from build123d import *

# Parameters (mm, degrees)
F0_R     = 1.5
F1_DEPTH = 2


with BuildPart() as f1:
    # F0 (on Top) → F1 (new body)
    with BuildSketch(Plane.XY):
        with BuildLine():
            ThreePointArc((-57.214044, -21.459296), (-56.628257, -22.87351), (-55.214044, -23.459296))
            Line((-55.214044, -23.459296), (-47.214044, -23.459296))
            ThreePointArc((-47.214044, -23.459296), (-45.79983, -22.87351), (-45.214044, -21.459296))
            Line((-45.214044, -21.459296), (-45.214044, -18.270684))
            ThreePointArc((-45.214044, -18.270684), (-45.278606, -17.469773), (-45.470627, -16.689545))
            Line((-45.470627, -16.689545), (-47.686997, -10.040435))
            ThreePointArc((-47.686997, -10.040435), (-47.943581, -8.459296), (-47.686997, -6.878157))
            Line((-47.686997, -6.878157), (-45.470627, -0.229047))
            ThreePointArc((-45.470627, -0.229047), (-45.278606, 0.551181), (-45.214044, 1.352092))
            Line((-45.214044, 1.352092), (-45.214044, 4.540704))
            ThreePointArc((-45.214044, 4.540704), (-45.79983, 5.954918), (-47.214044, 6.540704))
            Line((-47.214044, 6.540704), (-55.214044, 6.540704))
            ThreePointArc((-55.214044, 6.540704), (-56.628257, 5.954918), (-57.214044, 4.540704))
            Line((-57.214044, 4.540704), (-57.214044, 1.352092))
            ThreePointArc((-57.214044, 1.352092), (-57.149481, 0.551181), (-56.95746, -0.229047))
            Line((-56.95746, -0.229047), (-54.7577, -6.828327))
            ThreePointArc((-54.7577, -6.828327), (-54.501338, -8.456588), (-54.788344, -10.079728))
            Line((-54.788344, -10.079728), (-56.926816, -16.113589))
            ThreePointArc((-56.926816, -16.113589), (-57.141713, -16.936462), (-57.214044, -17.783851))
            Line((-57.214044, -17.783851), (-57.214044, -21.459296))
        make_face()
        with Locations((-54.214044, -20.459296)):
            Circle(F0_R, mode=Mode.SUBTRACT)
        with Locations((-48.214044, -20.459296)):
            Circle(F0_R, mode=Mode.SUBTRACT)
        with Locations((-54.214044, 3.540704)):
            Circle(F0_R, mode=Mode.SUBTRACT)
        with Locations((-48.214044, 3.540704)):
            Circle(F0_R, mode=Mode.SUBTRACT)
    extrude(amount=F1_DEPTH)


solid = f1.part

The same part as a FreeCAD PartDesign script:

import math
import FreeCAD as App
import Part
import Sketcher
Q = App.Units.Quantity

doc = App.newDocument("Part")
params = doc.addObject("Spreadsheet::Sheet", "Params")
for row, (alias, value) in enumerate([
    ("sketch1_diameter", "3 mm"),
    ("sketch1_diameter2", "3 mm"),
    ("sketch1_diameter3", "3 mm"),
    ("sketch1_diameter4", "3 mm"),
    ("sketch1_radius", "2 mm"),
    ("pad1_length", "2 mm"),
], start=1):
    params.set(f"A{row}", alias)
    params.set(f"B{row}", "=" + value)
    params.setAlias(f"B{row}", alias)

body = doc.addObject("PartDesign::Body", "Body")

sketch1 = doc.addObject("Sketcher::SketchObject", "Sketch")
body.addObject(sketch1)
sketch1.AttachmentSupport = (doc.XY_Plane, [""])
sketch1.MapMode = "FlatFace"
sketch1.addGeometry(Part.ArcOfCircle(Part.Circle(App.Vector(-55.214044, -21.459296, 0), App.Vector(0, 0, 1), 2), math.radians(-179.999994), math.radians(-90.000006)), False)
sketch1.addGeometry(Part.LineSegment(App.Vector(-55.214044, -23.459296, 0), App.Vector(-47.214044, -23.459296, 0)), False)
sketch1.addGeometry(Part.ArcOfCircle(Part.Circle(App.Vector(-47.214043, -21.459297, 0), App.Vector(0, 0, 1), 1.999999), math.radians(-90.000043), math.radians(0.000043)), False)
sketch1.addGeometry(Part.LineSegment(App.Vector(-45.214044, -21.459296, 0), App.Vector(-45.214044, -18.270684, 0)), False)
sketch1.addGeometry(Part.ArcOfCircle(Part.Circle(App.Vector(-50.214014, -18.270677, 0), App.Vector(0, 0, 1), 4.99997), math.radians(-0.000076), math.radians(18.434987)), False)
sketch1.addGeometry(Part.LineSegment(App.Vector(-45.470627, -16.689545, 0), App.Vector(-47.686997, -10.040435, 0)), False)
sketch1.addGeometry(Part.ArcOfCircle(Part.Circle(App.Vector(-42.943589, -8.459296, 0), App.Vector(0, 0, 1), 4.999992), math.radians(161.565019), math.radians(198.434981)), False)
sketch1.addGeometry(Part.LineSegment(App.Vector(-47.686997, -6.878157, 0), App.Vector(-45.470627, -0.229047, 0)), False)
sketch1.addGeometry(Part.ArcOfCircle(Part.Circle(App.Vector(-50.214014, 1.352085, 0), App.Vector(0, 0, 1), 4.99997), math.radians(-18.434987), math.radians(0.000076)), False)
sketch1.addGeometry(Part.LineSegment(App.Vector(-45.214044, 1.352092, 0), App.Vector(-45.214044, 4.540704, 0)), False)
sketch1.addGeometry(Part.ArcOfCircle(Part.Circle(App.Vector(-47.214043, 4.540705, 0), App.Vector(0, 0, 1), 1.999999), math.radians(-0.000043), math.radians(90.000043)), False)
sketch1.addGeometry(Part.LineSegment(App.Vector(-47.214044, 6.540704, 0), App.Vector(-55.214044, 6.540704, 0)), False)
sketch1.addGeometry(Part.ArcOfCircle(Part.Circle(App.Vector(-55.214044, 4.540704, 0), App.Vector(0, 0, 1), 2), math.radians(90.000006), math.radians(179.999994)), False)
sketch1.addGeometry(Part.LineSegment(App.Vector(-57.214044, 4.540704, 0), App.Vector(-57.214044, 1.352092, 0)), False)
sketch1.addGeometry(Part.ArcOfCircle(Part.Circle(App.Vector(-52.214036, 1.352095, 0), App.Vector(0, 0, 1), 5.000008), math.radians(-179.999969), math.radians(-161.565049)), False)
sketch1.addGeometry(Part.LineSegment(App.Vector(-56.95746, -0.229047, 0), App.Vector(-54.7577, -6.828327, 0)), False)
sketch1.addGeometry(Part.ArcOfCircle(Part.Circle(App.Vector(-59.501107, -8.409466, 0), App.Vector(0, 0, 1), 4.999991), math.radians(-19.514963), math.radians(18.434986)), False)
sketch1.addGeometry(Part.LineSegment(App.Vector(-54.788344, -10.079728, 0), App.Vector(-56.926816, -16.113589, 0)), False)
sketch1.addGeometry(Part.ArcOfCircle(Part.Circle(App.Vector(-52.213992, -17.783861, 0), App.Vector(0, 0, 1), 5.000052), math.radians(160.485159), math.radians(179.999881)), False)
sketch1.addGeometry(Part.LineSegment(App.Vector(-57.214044, -17.783851, 0), App.Vector(-57.214044, -21.459296, 0)), False)
sketch1.addGeometry(Part.Circle(App.Vector(-54.214044, -20.459296, 0), App.Vector(0, 0, 1), 1.5), False)
sketch1.addGeometry(Part.Circle(App.Vector(-48.214044, -20.459296, 0), App.Vector(0, 0, 1), 1.5), False)
sketch1.addGeometry(Part.Circle(App.Vector(-54.214044, 3.540704, 0), App.Vector(0, 0, 1), 1.5), False)
sketch1.addGeometry(Part.Circle(App.Vector(-48.214044, 3.540704, 0), App.Vector(0, 0, 1), 1.5), False)
sketch1.addConstraint(Sketcher.Constraint("Coincident", 0, 2, 1, 1))
sketch1.addConstraint(Sketcher.Constraint("Coincident", 1, 2, 2, 1))
sketch1.addConstraint(Sketcher.Constraint("Coincident", 2, 2, 3, 1))
sketch1.addConstraint(Sketcher.Constraint("Coincident", 3, 2, 4, 1))
sketch1.addConstraint(Sketcher.Constraint("Coincident", 4, 2, 5, 1))
sketch1.addConstraint(Sketcher.Constraint("Coincident", 5, 2, 6, 2))
sketch1.addConstraint(Sketcher.Constraint("Coincident", 6, 1, 7, 1))
sketch1.addConstraint(Sketcher.Constraint("Coincident", 7, 2, 8, 1))
sketch1.addConstraint(Sketcher.Constraint("Coincident", 8, 2, 9, 1))
sketch1.addConstraint(Sketcher.Constraint("Coincident", 9, 2, 10, 1))
sketch1.addConstraint(Sketcher.Constraint("Coincident", 10, 2, 11, 1))
sketch1.addConstraint(Sketcher.Constraint("Coincident", 11, 2, 12, 1))
sketch1.addConstraint(Sketcher.Constraint("Coincident", 12, 2, 13, 1))
sketch1.addConstraint(Sketcher.Constraint("Coincident", 13, 2, 14, 1))
sketch1.addConstraint(Sketcher.Constraint("Coincident", 14, 2, 15, 1))
sketch1.addConstraint(Sketcher.Constraint("Coincident", 15, 2, 16, 2))
sketch1.addConstraint(Sketcher.Constraint("Coincident", 16, 1, 17, 1))
sketch1.addConstraint(Sketcher.Constraint("Coincident", 17, 2, 18, 1))
sketch1.addConstraint(Sketcher.Constraint("Coincident", 18, 2, 19, 1))
sketch1.addConstraint(Sketcher.Constraint("Coincident", 19, 2, 0, 1))
sketch1.addConstraint(Sketcher.Constraint("Horizontal", 1))
sketch1.addConstraint(Sketcher.Constraint("Vertical", 3))
sketch1.addConstraint(Sketcher.Constraint("Vertical", 9))
sketch1.addConstraint(Sketcher.Constraint("Horizontal", 11))
sketch1.addConstraint(Sketcher.Constraint("Vertical", 13))
sketch1.addConstraint(Sketcher.Constraint("Vertical", 19))
sketch1.addConstraint(Sketcher.Constraint("Diameter", 20, Q("3 mm")))
sketch1.addConstraint(Sketcher.Constraint("Diameter", 21, Q("3 mm")))
sketch1.addConstraint(Sketcher.Constraint("Diameter", 22, Q("3 mm")))
sketch1.addConstraint(Sketcher.Constraint("Diameter", 23, Q("3 mm")))
sketch1.addConstraint(Sketcher.Constraint("Radius", 0, Q("2 mm")))
sketch1.addConstraint(Sketcher.Constraint("Radius", 2, Q("1.999999 mm")))
sketch1.addConstraint(Sketcher.Constraint("Radius", 10, Q("1.999999 mm")))
sketch1.addConstraint(Sketcher.Constraint("Radius", 12, Q("2 mm")))
sketch1.addConstraint(Sketcher.Constraint("DistanceX", 1, 1, 1, 2, Q("8 mm")))
sketch1.addConstraint(Sketcher.Constraint("DistanceX", 11, 2, 11, 1, Q("8 mm")))
sketch1.addConstraint(Sketcher.Constraint("DistanceX", 0, 3, 2, 3, Q("8.000001 mm")))
sketch1.addConstraint(Sketcher.Constraint("DistanceY", 2, 3, 6, 3, Q("13.000001 mm")))
sketch1.addConstraint(Sketcher.Constraint("DistanceY", 6, 3, 10, 3, Q("13.000001 mm")))
sketch1.addConstraint(Sketcher.Constraint("DistanceX", 0, 3, 10, 3, Q("8.000001 mm")))
sketch1.addConstraint(Sketcher.Constraint("DistanceX", 12, 3, 10, 3, Q("8.000001 mm")))
sketch1.addConstraint(Sketcher.Constraint("DistanceX", 0, 3, 20, 3, Q("1 mm")))
sketch1.addConstraint(Sketcher.Constraint("DistanceY", 0, 3, 20, 3, Q("1 mm")))
sketch1.addConstraint(Sketcher.Constraint("DistanceX", 21, 3, 2, 3, Q("1.000001 mm")))
sketch1.addConstraint(Sketcher.Constraint("DistanceY", 2, 3, 21, 3, Q("1.000001 mm")))
sketch1.addConstraint(Sketcher.Constraint("DistanceX", 12, 3, 22, 3, Q("1 mm")))
sketch1.addConstraint(Sketcher.Constraint("DistanceY", 22, 3, 12, 3, Q("1 mm")))
sketch1.addConstraint(Sketcher.Constraint("DistanceX", 23, 3, 10, 3, Q("1.000001 mm")))
sketch1.addConstraint(Sketcher.Constraint("DistanceY", 23, 3, 10, 3, Q("1.000001 mm")))
sketch1.addConstraint(Sketcher.Constraint("DistanceX", 0, 2, 20, 3, Q("1 mm")))
sketch1.addConstraint(Sketcher.Constraint("DistanceY", 1, 2, 2, 2, Q("2 mm")))
sketch1.addConstraint(Sketcher.Constraint("DistanceY", 23, 3, 9, 2, Q("1 mm")))
sketch1.addConstraint(Sketcher.Constraint("DistanceX", 10, 2, 9, 2, Q("2 mm")))
sketch1.addConstraint(Sketcher.Constraint("DistanceY", 12, 2, 11, 2, Q("2 mm")))
sketch1.addConstraint(Sketcher.Constraint("DistanceY", 0, 2, 19, 2, Q("2 mm")))
sketch1.addConstraint(Sketcher.Constraint("Radius", 4, Q("4.99997 mm")))
sketch1.addConstraint(Sketcher.Constraint("Radius", 6, Q("4.999992 mm")))
sketch1.addConstraint(Sketcher.Constraint("Radius", 8, Q("4.99997 mm")))
sketch1.addConstraint(Sketcher.Constraint("Radius", 14, Q("5.000008 mm")))
sketch1.addConstraint(Sketcher.Constraint("Radius", 16, Q("4.999991 mm")))
sketch1.addConstraint(Sketcher.Constraint("Radius", 18, Q("5.000052 mm")))
sketch1.addConstraint(Sketcher.Constraint("DistanceY", 3, 1, 3, 2, Q("3.188612 mm")))
sketch1.addConstraint(Sketcher.Constraint("DistanceY", 9, 1, 9, 2, Q("3.188612 mm")))
sketch1.addConstraint(Sketcher.Constraint("DistanceY", 13, 2, 13, 1, Q("3.188612 mm")))
sketch1.addConstraint(Sketcher.Constraint("DistanceX", 15, 2, -1, 1, Q("54.7577 mm")))
sketch1.addConstraint(Sketcher.Constraint("DistanceY", 16, 1, 15, 2, Q("3.251401 mm")))
sketch1.addConstraint(Sketcher.Constraint("Distance", 15, Q("6.956252 mm")))
sketch1.addConstraint(Sketcher.Constraint("DistanceY", 19, 2, 19, 1, Q("3.675445 mm")))
sketch1.addConstraint(Sketcher.Constraint("DistanceX", 6, 3, -1, 1, Q("42.943589 mm")))
sketch1.addConstraint(Sketcher.Constraint("DistanceY", 18, 3, -1, 1, Q("17.783861 mm")))
sketch1.addConstraint(Sketcher.Constraint("DistanceX", 14, 2, -1, 1, Q("56.95746 mm")))
sketch1.addConstraint(Sketcher.Constraint("DistanceY", 16, 1, -1, 1, Q("10.079728 mm")))
sketch1.addConstraint(Sketcher.Constraint("DistanceY", 17, 2, -1, 1, Q("16.113589 mm")))
sketch1.addConstraint(Sketcher.Constraint("DistanceY", 18, 2, -1, 1, Q("17.783851 mm")))
sketch1.addConstraint(Sketcher.Constraint("DistanceY", 2, 3, 4, 3, Q("3.18862 mm")))
sketch1.addConstraint(Sketcher.Constraint("DistanceY", 6, 3, 8, 3, Q("9.811381 mm")))
sketch1.addConstraint(Sketcher.Constraint("DistanceY", 14, 3, 12, 3, Q("3.188609 mm")))
sketch1.addConstraint(Sketcher.Constraint("DistanceX", 16, 3, 14, 3, Q("7.287071 mm")))
sketch1.addConstraint(Sketcher.Constraint("DistanceY", 3, 2, 4, 2, Q("1.581139 mm")))
sketch1.addConstraint(Sketcher.Constraint("DistanceY", 5, 2, 6, 3, Q("1.581139 mm")))
sketch1.addConstraint(Sketcher.Constraint("DistanceY", 5, 2, 6, 1, Q("3.162278 mm")))
sketch1.addConstraint(Sketcher.Constraint("DistanceY", 7, 2, 23, 3, Q("3.769751 mm")))
sketch1.setExpression("Constraints[26]", "Params.sketch1_diameter")
sketch1.setExpression("Constraints[27]", "Params.sketch1_diameter2")
sketch1.setExpression("Constraints[28]", "Params.sketch1_diameter3")
sketch1.setExpression("Constraints[29]", "Params.sketch1_diameter4")
sketch1.setExpression("Constraints[30]", "Params.sketch1_radius")
pad1 = doc.addObject("PartDesign::Pad", "Pad")
body.addObject(pad1)
pad1.Profile = sketch1
pad1.setExpression("Length", "Params.pad1_length")

doc.recompute()
